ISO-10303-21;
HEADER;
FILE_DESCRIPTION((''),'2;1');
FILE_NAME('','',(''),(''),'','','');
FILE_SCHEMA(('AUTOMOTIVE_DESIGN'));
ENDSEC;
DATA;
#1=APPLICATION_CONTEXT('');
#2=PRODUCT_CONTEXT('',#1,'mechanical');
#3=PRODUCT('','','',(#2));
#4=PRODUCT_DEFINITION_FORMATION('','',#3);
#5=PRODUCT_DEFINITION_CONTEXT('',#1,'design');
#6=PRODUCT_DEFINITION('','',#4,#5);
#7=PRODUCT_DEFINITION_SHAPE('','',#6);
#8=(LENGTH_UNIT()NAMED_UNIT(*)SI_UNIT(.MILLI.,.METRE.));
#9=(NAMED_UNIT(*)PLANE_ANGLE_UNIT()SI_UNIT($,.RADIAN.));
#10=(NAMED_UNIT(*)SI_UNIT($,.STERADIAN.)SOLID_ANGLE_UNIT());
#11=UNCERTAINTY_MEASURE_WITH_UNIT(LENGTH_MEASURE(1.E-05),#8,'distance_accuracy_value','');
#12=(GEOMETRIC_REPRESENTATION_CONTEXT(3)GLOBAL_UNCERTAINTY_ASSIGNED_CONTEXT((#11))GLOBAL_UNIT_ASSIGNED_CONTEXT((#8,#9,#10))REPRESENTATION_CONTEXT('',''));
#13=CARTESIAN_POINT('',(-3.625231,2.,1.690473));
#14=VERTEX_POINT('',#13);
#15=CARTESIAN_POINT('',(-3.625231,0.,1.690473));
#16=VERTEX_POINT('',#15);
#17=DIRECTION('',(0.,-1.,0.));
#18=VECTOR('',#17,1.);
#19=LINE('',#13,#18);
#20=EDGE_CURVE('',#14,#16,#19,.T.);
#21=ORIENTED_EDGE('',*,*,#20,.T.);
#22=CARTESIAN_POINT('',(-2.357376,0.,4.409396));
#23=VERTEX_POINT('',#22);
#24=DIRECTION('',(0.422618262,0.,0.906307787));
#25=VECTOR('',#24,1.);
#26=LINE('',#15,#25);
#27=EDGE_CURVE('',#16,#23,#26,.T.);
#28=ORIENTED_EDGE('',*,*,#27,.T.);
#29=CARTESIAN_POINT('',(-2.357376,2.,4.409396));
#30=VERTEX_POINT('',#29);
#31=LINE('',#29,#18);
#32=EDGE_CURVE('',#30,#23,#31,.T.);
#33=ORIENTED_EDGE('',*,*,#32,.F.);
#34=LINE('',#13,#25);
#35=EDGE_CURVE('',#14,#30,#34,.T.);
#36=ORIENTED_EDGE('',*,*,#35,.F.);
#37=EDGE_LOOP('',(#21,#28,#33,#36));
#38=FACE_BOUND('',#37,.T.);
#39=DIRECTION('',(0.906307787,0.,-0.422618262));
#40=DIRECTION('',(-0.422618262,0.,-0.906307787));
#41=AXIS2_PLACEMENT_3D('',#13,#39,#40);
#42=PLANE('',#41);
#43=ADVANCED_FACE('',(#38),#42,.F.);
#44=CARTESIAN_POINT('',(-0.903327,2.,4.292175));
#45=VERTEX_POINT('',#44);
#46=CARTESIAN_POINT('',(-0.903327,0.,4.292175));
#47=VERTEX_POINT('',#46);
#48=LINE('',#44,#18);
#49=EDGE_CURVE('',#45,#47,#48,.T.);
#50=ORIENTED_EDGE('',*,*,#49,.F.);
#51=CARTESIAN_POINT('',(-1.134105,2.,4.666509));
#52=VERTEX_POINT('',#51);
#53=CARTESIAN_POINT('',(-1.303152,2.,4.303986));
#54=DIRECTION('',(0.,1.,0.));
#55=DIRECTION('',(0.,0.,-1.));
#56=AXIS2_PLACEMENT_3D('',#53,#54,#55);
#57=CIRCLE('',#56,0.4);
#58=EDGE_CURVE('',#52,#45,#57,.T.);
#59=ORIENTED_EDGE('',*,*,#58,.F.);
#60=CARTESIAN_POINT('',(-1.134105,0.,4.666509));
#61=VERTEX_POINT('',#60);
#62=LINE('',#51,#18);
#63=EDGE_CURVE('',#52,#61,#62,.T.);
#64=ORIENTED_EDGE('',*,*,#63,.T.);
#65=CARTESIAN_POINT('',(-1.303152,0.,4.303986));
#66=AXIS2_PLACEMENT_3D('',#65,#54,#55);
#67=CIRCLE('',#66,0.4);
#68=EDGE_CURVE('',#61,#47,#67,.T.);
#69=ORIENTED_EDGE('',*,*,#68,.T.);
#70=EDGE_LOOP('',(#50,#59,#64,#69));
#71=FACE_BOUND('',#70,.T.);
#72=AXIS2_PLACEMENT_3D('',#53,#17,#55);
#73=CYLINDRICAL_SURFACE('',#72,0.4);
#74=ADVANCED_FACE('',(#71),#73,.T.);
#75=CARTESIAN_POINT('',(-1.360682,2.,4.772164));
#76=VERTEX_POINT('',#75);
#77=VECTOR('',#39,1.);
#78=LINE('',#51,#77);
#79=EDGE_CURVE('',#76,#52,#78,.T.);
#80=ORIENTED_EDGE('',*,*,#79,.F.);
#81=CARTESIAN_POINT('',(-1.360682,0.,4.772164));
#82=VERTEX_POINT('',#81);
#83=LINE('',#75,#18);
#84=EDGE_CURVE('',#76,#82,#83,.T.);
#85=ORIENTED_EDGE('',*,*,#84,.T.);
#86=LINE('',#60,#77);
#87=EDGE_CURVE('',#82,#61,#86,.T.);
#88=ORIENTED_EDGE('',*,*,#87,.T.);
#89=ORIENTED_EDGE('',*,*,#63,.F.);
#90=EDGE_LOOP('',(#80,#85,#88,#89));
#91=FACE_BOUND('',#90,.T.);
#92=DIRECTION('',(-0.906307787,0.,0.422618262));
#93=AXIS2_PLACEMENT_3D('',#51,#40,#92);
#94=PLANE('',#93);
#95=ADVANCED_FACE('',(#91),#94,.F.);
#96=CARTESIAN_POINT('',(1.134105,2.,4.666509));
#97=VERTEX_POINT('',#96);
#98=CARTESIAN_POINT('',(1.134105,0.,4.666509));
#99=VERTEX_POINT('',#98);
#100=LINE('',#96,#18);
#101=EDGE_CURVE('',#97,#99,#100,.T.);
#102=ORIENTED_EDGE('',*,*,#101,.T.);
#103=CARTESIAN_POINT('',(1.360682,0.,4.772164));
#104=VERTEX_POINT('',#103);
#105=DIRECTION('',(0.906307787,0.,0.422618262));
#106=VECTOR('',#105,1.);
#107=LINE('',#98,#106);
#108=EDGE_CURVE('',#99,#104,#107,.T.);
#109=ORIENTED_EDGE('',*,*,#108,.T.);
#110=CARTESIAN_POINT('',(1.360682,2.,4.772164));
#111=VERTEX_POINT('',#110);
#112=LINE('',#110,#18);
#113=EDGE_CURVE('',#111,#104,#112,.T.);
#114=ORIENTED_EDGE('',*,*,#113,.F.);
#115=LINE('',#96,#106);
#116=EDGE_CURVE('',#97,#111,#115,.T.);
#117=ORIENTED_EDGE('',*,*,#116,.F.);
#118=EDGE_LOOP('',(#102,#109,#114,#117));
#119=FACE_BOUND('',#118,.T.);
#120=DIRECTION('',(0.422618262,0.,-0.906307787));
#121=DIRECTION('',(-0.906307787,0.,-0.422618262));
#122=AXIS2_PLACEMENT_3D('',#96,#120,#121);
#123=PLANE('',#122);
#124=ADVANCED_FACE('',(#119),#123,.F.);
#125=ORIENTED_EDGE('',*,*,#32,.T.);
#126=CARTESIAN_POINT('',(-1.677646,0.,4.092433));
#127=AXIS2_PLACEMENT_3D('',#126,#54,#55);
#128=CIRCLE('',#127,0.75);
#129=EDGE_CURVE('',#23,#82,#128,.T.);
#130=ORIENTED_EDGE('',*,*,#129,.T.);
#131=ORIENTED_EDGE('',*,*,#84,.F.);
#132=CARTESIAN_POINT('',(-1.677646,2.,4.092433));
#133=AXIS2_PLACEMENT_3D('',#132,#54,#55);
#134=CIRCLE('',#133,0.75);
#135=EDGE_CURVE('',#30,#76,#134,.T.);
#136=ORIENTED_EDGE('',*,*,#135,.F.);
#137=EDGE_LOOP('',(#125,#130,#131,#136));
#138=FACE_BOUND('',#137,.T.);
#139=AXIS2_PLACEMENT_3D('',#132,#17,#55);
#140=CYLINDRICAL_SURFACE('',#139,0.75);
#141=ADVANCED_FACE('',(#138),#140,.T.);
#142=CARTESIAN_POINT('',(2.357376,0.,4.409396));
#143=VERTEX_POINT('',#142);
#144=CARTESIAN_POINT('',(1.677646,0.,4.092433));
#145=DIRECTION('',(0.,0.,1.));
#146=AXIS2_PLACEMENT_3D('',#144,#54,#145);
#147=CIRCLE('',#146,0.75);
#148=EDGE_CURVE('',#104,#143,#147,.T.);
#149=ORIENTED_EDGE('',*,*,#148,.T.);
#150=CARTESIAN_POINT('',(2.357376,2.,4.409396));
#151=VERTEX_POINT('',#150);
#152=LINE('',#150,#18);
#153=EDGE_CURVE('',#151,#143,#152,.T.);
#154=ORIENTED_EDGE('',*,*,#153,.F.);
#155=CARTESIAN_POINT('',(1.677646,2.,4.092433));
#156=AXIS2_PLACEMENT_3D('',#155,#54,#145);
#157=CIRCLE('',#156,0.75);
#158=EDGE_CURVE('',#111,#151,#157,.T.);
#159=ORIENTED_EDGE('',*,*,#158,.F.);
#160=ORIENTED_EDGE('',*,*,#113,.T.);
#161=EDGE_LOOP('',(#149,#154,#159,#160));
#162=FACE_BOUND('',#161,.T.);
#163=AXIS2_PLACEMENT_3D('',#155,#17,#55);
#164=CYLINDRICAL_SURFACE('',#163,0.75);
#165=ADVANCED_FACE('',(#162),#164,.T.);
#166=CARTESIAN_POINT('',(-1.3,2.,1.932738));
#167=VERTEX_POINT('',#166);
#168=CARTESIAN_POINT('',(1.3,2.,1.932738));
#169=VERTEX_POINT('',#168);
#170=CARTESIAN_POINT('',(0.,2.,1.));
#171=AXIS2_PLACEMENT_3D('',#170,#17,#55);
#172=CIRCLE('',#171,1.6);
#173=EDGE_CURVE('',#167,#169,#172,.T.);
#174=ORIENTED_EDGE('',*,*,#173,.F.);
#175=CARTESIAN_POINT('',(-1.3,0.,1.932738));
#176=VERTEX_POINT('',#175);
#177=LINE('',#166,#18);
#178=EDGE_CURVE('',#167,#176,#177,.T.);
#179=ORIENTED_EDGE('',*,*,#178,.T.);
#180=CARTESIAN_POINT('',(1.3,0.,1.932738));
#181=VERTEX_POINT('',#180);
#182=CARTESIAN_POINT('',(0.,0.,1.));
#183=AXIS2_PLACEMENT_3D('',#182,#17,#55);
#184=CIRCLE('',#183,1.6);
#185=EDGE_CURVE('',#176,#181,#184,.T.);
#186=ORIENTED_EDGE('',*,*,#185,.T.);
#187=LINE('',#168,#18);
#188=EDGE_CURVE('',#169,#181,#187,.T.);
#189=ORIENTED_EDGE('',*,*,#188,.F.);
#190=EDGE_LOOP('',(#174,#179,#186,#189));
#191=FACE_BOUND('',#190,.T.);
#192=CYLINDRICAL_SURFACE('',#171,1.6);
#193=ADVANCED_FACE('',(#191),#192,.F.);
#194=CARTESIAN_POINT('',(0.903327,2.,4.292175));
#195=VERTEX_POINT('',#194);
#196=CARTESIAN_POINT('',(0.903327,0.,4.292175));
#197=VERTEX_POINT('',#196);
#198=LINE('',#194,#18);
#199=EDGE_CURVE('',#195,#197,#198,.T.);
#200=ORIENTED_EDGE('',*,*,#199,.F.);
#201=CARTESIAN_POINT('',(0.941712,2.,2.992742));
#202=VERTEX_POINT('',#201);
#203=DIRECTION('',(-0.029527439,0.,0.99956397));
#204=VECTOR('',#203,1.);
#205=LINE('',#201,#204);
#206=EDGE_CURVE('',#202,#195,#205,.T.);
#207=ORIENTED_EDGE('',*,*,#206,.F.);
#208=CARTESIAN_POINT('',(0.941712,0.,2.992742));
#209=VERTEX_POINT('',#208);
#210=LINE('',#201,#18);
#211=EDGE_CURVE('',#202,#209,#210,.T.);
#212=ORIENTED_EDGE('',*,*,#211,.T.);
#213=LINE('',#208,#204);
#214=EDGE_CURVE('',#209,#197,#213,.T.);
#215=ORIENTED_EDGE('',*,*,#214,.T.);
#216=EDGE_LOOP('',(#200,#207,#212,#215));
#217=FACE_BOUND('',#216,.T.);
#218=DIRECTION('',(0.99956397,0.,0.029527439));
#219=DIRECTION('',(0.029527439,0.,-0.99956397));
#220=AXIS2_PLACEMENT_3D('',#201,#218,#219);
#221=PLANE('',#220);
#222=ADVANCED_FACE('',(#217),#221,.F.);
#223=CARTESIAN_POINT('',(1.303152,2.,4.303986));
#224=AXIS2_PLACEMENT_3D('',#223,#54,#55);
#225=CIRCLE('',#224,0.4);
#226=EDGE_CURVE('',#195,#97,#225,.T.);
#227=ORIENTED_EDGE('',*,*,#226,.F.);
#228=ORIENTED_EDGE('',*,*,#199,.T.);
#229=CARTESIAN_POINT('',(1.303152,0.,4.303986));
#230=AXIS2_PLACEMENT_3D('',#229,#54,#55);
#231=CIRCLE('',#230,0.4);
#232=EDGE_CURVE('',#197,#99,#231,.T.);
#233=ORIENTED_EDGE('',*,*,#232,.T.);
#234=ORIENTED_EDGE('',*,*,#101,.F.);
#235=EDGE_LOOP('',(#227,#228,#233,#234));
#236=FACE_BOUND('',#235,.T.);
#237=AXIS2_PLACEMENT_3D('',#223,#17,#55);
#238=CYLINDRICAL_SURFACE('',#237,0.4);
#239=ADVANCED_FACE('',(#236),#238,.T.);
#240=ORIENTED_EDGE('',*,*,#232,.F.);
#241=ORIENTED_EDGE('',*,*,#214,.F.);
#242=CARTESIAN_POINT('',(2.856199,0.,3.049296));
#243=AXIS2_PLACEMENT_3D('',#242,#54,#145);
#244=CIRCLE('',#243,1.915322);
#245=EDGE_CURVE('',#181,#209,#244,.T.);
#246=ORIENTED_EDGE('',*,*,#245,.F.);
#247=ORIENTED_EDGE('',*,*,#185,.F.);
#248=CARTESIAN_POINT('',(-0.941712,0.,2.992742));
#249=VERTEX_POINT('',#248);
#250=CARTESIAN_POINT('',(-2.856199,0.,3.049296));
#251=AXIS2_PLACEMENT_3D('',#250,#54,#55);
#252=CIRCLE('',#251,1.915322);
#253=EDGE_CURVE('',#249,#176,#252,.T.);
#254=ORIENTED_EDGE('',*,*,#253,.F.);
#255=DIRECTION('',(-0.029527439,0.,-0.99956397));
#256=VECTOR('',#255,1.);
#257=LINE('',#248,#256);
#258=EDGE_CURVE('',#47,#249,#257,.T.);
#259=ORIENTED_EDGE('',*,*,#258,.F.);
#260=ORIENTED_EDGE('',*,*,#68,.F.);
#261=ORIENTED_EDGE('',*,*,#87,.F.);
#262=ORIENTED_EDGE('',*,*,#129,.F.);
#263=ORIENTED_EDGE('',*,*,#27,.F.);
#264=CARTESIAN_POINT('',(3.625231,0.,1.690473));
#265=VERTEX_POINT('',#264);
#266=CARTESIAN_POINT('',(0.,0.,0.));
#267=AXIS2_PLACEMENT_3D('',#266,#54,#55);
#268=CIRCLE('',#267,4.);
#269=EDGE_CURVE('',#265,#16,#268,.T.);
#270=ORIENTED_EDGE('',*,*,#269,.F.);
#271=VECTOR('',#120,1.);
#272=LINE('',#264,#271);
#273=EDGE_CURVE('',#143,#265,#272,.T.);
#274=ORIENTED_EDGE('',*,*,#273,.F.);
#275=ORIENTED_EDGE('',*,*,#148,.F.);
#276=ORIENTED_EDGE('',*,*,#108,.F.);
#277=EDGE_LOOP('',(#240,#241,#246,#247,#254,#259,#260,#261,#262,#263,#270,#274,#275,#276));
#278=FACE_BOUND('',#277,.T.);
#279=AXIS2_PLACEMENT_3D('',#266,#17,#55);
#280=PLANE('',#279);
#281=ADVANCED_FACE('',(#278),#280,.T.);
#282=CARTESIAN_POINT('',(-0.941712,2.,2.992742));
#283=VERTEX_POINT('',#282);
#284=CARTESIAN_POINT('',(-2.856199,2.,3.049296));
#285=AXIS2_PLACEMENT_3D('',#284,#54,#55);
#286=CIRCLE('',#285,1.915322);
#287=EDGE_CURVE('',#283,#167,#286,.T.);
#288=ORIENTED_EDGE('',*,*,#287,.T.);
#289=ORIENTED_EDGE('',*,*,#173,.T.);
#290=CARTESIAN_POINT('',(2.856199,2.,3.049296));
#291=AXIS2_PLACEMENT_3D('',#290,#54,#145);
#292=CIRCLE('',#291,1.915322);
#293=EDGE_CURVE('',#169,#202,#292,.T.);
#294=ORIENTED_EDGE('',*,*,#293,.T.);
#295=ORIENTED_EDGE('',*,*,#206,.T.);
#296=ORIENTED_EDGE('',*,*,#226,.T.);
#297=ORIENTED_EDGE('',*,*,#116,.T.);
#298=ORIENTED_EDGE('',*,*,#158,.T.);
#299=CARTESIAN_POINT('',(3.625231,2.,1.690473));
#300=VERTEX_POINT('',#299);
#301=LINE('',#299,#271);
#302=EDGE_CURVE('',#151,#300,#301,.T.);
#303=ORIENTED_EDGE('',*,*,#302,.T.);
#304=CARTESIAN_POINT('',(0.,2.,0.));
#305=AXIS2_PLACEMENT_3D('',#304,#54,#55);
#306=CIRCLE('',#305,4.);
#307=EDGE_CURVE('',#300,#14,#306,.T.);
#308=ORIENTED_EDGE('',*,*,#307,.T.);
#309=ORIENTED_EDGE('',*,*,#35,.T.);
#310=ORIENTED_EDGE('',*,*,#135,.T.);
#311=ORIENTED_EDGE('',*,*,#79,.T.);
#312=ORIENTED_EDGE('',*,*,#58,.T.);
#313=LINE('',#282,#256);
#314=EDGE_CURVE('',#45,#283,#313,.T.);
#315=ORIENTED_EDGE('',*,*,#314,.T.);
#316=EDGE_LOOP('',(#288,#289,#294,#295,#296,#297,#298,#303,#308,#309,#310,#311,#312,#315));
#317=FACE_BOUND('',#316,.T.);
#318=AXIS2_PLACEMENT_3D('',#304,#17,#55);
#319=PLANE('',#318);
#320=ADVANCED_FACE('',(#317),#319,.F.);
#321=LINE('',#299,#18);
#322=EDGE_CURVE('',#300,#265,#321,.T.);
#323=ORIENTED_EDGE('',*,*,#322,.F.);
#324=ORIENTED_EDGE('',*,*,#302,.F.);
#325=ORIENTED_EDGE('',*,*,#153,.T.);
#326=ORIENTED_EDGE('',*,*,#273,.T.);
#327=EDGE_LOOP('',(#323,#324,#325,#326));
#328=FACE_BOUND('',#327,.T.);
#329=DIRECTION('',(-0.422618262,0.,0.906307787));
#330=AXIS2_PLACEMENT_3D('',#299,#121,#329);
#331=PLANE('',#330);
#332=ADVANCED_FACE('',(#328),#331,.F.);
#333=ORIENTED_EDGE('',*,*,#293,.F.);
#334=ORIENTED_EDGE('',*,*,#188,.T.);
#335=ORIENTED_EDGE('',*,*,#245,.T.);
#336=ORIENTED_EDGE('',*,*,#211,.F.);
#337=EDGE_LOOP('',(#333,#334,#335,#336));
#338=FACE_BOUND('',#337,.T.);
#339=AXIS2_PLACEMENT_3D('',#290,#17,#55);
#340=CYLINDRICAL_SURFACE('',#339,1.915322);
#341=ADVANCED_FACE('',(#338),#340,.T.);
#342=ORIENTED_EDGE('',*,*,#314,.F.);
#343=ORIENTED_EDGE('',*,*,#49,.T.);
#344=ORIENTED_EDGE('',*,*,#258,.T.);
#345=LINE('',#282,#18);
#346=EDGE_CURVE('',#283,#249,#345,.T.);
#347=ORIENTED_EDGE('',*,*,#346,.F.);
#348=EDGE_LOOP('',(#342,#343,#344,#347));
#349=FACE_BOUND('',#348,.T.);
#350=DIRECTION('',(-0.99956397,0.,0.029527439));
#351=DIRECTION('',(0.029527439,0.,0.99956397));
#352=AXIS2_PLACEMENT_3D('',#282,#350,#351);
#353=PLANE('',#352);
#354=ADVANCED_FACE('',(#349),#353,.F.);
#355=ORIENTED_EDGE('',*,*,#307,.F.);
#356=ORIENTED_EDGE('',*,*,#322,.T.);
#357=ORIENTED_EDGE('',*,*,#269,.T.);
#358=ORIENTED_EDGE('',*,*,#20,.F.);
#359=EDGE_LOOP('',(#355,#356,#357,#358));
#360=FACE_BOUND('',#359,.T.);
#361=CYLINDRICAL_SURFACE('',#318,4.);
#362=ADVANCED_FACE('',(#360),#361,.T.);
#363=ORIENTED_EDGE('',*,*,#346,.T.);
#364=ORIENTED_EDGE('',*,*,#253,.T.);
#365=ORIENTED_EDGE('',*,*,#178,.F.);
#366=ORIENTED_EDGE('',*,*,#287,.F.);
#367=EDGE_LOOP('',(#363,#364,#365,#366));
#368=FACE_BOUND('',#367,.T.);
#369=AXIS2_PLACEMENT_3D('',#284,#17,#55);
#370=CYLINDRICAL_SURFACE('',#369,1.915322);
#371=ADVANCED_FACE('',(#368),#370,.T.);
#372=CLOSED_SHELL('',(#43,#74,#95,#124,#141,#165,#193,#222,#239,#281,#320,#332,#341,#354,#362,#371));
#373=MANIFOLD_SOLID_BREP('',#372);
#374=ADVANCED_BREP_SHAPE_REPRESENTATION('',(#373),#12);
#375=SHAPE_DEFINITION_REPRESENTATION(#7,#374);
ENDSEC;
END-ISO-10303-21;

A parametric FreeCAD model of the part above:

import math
import FreeCAD as App
import Part
import Sketcher
Q = App.Units.Quantity

doc = App.newDocument("Part")
body = doc.addObject("PartDesign::Body", "Body")

# Sketch on XZ plane
sketch1 = body.newObject("Sketcher::SketchObject", "Sketch")
sketch1.AttachmentSupport = (doc.getObject("XZ_Plane"), [""])
sketch1.MapMode = "FlatFace"
sketch1.addGeometry([
    Part.LineSegment(App.Vector(-3.63, 1.69, 0), App.Vector(-2.36, 4.41, 0)),  # 0
    Part.ArcOfCircle(Part.Circle(App.Vector(-1.68, 4.09, 0), App.Vector(0, 0, 1), 0.75), math.radians(65), math.radians(155)),  # 1
    Part.LineSegment(App.Vector(-1.36, 4.77, 0), App.Vector(-1.13, 4.67, 0)),  # 2
    Part.ArcOfCircle(Part.Circle(App.Vector(-1.3, 4.3, 0), App.Vector(0, 0, 1), 0.4), math.radians(-2), math.radians(65)),  # 3
    Part.LineSegment(App.Vector(-0.9, 4.29, 0), App.Vector(-0.94, 2.99, 0)),  # 4
    Part.ArcOfCircle(Part.Circle(App.Vector(-2.86, 3.05, 0), App.Vector(0, 0, 1), 1.92), math.radians(-36), math.radians(-2)),  # 5
    Part.ArcOfCircle(Part.Circle(App.Vector(0, 1, 0), App.Vector(0, 0, 1), 1.6), math.radians(144), math.radians(396)),  # 6
    Part.ArcOfCircle(Part.Circle(App.Vector(2.86, 3.05, 0), App.Vector(0, 0, 1), 1.92), math.radians(-178), math.radians(-144)),  # 7
    Part.LineSegment(App.Vector(0.94, 2.99, 0), App.Vector(0.9, 4.29, 0)),  # 8
    Part.ArcOfCircle(Part.Circle(App.Vector(1.3, 4.3, 0), App.Vector(0, 0, 1), 0.4), math.radians(115), math.radians(182)),  # 9
    Part.LineSegment(App.Vector(1.13, 4.67, 0), App.Vector(1.36, 4.77, 0)),  # 10
    Part.ArcOfCircle(Part.Circle(App.Vector(1.68, 4.09, 0), App.Vector(0, 0, 1), 0.75), math.radians(25), math.radians(115)),  # 11
    Part.LineSegment(App.Vector(2.36, 4.41, 0), App.Vector(3.63, 1.69, 0)),  # 12
    Part.ArcOfCircle(Part.Circle(App.Vector(0, 0, 0), App.Vector(0, 0, 1), 4), math.radians(155), math.radians(385)),  # 13
], False)
sketch1.addConstraint([
    Sketcher.Constraint("Tangent", 0, 2, 1, 2),
    Sketcher.Constraint("Tangent", 1, 1, 2, 1),
    Sketcher.Constraint("Tangent", 2, 2, 3, 2),
    Sketcher.Constraint("Tangent", 3, 1, 4, 1),
    Sketcher.Constraint("Tangent", 4, 2, 5, 2),
    Sketcher.Constraint("Tangent", 5, 1, 6, 1),
    Sketcher.Constraint("Tangent", 6, 2, 7, 2),
    Sketcher.Constraint("Tangent", 7, 1, 8, 1),
    Sketcher.Constraint("Tangent", 8, 2, 9, 2),
    Sketcher.Constraint("Tangent", 9, 1, 10, 1),
    Sketcher.Constraint("Tangent", 10, 2, 11, 2),
    Sketcher.Constraint("Tangent", 11, 1, 12, 1),
    Sketcher.Constraint("Tangent", 12, 2, 13, 2),
    Sketcher.Constraint("Tangent", 13, 1, 0, 1),
    Sketcher.Constraint("Coincident", 13, 3, -1, 1),
    Sketcher.Constraint("Equal", 5, 7),
    Sketcher.Constraint("Equal", 3, 9),
    Sketcher.Constraint("Equal", 1, 11),
    Sketcher.Constraint("Symmetric", 5, 3, 7, 3, -2),
    Sketcher.Constraint("Symmetric", 3, 3, 9, 3, -2),
    Sketcher.Constraint("Symmetric", 1, 3, 11, 3, -2),
    Sketcher.Constraint("Perpendicular", 0, 2),
    Sketcher.Constraint("Radius", 13, 4.0),
    Sketcher.Constraint("Radius", 3, 0.4),
    Sketcher.Constraint("Radius", 6, 1.6),
    Sketcher.Constraint("Angle", 0, Q("65 deg")),
    Sketcher.Constraint("Radius", 1, 0.75),
    Sketcher.Constraint("Distance", 0, 3.0),
    Sketcher.Constraint("DistanceY", -1, 1, 6, 3, 1.0),
    Sketcher.Constraint("Distance", 4, 1.3),
    Sketcher.Constraint("DistanceX", 5, 1, -1, 1, 1.3),
    Sketcher.Constraint("Distance", 2, 0.25),
])
pad1 = body.newObject("PartDesign::Pad", "Pad")
pad1.Profile = sketch1
pad1.Length = 2
pad1.Reversed = True

doc.recompute()
